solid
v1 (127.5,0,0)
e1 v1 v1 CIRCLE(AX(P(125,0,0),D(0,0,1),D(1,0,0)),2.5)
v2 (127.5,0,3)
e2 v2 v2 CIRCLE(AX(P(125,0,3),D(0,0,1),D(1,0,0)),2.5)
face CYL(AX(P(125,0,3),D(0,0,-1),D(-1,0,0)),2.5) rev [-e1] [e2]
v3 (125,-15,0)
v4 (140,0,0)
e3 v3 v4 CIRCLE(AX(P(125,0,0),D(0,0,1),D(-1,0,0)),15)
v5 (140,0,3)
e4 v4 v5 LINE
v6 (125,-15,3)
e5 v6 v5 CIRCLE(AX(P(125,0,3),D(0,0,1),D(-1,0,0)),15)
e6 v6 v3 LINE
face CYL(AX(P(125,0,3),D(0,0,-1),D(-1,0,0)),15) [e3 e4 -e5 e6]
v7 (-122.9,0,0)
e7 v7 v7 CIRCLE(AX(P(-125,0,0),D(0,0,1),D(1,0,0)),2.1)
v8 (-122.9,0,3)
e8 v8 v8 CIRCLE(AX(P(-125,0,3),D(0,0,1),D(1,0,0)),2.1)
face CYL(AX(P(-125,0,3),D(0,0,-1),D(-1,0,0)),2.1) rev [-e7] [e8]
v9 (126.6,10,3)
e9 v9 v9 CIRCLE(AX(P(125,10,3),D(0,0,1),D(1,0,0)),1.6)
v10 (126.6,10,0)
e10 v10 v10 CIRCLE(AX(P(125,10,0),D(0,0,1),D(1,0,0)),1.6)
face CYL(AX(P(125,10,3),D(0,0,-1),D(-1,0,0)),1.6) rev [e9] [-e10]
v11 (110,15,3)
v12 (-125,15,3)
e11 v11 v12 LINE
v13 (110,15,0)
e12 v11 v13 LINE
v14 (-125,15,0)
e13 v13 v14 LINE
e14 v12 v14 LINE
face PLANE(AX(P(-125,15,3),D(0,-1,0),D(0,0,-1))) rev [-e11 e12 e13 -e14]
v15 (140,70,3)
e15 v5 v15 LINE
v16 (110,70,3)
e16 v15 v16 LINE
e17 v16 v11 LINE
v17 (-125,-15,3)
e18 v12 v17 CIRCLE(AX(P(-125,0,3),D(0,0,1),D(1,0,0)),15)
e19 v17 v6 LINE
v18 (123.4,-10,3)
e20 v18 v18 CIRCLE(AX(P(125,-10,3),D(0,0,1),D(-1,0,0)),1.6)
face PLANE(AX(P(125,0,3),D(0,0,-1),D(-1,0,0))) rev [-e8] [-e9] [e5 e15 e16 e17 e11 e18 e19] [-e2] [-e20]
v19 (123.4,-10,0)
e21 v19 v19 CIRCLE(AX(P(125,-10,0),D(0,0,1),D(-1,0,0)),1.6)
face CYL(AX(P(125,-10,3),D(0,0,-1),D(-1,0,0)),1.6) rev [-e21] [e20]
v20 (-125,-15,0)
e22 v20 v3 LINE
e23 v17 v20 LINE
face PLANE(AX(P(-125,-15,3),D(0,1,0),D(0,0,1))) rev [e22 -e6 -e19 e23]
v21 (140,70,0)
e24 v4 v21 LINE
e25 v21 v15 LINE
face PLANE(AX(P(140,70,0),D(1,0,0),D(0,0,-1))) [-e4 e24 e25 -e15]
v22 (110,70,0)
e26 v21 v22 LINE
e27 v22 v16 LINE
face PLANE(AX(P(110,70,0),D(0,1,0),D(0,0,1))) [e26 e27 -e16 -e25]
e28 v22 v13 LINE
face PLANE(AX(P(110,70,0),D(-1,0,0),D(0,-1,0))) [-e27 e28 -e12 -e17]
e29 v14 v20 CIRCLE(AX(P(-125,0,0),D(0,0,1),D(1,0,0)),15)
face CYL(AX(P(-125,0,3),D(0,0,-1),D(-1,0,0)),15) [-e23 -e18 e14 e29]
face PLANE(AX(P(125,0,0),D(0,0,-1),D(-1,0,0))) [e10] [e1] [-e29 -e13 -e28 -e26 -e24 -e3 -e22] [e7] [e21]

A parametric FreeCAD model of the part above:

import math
import FreeCAD as App
import Part
import Sketcher
from FreeCAD import Vector
Q = App.Units.Quantity

doc = App.newDocument("Part")
params = doc.addObject("Spreadsheet::Sheet", "Params")
for row, (alias, value) in enumerate([
    ("sketch1_diameter", "5 mm"),
    ("sketch1_radius", "15 mm"),
    ("sketch1_diameter2", "3.2 mm"),
    ("sketch1_diameter3", "4.2 mm"),
    ("sketch1_width", "250 mm"),
    ("pad1_length", "3 mm"),
    ("sketch2_diameter", "3.2 mm"),
    ("sketch2_radius", "2.5 mm"),
    ("sketch2_width", "30 mm"),
    ("sketch2_height", "70 mm"),
    ("pad2_length", "3 mm"),
], start=1):
    params.set(f"A{row}", alias)
    params.set(f"B{row}", "=" + value)
    params.setAlias(f"B{row}", alias)

body = doc.addObject("PartDesign::Body", "Body")

# Sketch on XY plane
sketch1 = body.newObject("Sketcher::SketchObject", "Sketch")
sketch1.AttachmentSupport = (doc.getObject("XY_Plane"), [""])
sketch1.MapMode = "FlatFace"
sketch1.addGeometry(Part.LineSegment(Vector(125, 15, 0), Vector(-125, 15, 0)), False)
sketch1.addGeometry(Part.ArcOfCircle(Part.Circle(Vector(-125, 0, 0), Vector(0, 0, 1), 15), math.radians(90), math.radians(270)), False)
sketch1.addGeometry(Part.LineSegment(Vector(-125, -15, 0), Vector(125, -15, 0)), False)
sketch1.addGeometry(Part.ArcOfCircle(Part.Circle(Vector(125, 0, 0), Vector(0, 0, 1), 15), math.radians(-90), math.radians(90)), False)
sketch1.addGeometry(Part.Circle(Vector(125, -10, 0), Vector(0, 0, 1), 1.6), False)
sketch1.addGeometry(Part.Circle(Vector(125, 0, 0), Vector(0, 0, 1), 2.5), False)
sketch1.addGeometry(Part.Circle(Vector(125, 10, 0), Vector(0, 0, 1), 1.6), False)
sketch1.addGeometry(Part.Circle(Vector(-125, 0, 0), Vector(0, 0, 1), 2.1), False)
sketch1.addConstraint(Sketcher.Constraint("Tangent", 0, 2, 1, 1))
sketch1.addConstraint(Sketcher.Constraint("Tangent", 1, 2, 2, 1))
sketch1.addConstraint(Sketcher.Constraint("Tangent", 2, 2, 3, 1))
sketch1.addConstraint(Sketcher.Constraint("Tangent", 3, 2, 0, 1))
sketch1.addConstraint(Sketcher.Constraint("Horizontal", 0))
sketch1.addConstraint(Sketcher.Constraint("Horizontal", 2))
sketch1.addConstraint(Sketcher.Constraint("Coincident", 5, 3, 3, 3))
sketch1.addConstraint(Sketcher.Constraint("Coincident", 7, 3, 1, 3))
sketch1.addConstraint(Sketcher.Constraint("Equal", 4, 6))
sketch1.addConstraint(Sketcher.Constraint("Symmetric", 1, 3, 3, 3, -1, 1))
sketch1.addConstraint(Sketcher.Constraint("Symmetric", 4, 3, 6, 3, -1))
sketch1.addConstraint(Sketcher.Constraint("Vertical", 3, 3, 4, 3))
sketch1.addConstraint(Sketcher.Constraint("Diameter", 5, Q("5 mm")))
sketch1.addConstraint(Sketcher.Constraint("Radius", 1, Q("15 mm")))
sketch1.addConstraint(Sketcher.Constraint("Diameter", 4, Q("3.2 mm")))
sketch1.addConstraint(Sketcher.Constraint("Diameter", 7, Q("4.2 mm")))
sketch1.addConstraint(Sketcher.Constraint("DistanceX", 0, 2, 0, 1, Q("250 mm")))
sketch1.addConstraint(Sketcher.Constraint("DistanceY", 4, 3, -1, 1, Q("10 mm")))
sketch1.setExpression("Constraints[12]", "Params.sketch1_diameter")
sketch1.setExpression("Constraints[13]", "Params.sketch1_radius")
sketch1.setExpression("Constraints[14]", "Params.sketch1_diameter2")
sketch1.setExpression("Constraints[15]", "Params.sketch1_diameter3")
sketch1.setExpression("Constraints[16]", "Params.sketch1_width")
pad1 = body.newObject("PartDesign::Pad", "Pad")
pad1.Profile = sketch1
pad1.setExpression("Length", "Params.pad1_length")

# Sketch on XY plane
sketch2 = body.newObject("Sketcher::SketchObject", "Sketch001")
sketch2.AttachmentSupport = (doc.getObject("XY_Plane"), [""])
sketch2.MapMode = "FlatFace"
sketch2.addGeometry(Part.LineSegment(Vector(140, 70, 0), Vector(110, 70, 0)), False)
sketch2.addGeometry(Part.LineSegment(Vector(110, 70, 0), Vector(110, 0, 0)), False)
sketch2.addGeometry(Part.LineSegment(Vector(110, 0, 0), Vector(122.5, 0, 0)), False)
sketch2.addGeometry(Part.ArcOfCircle(Part.Circle(Vector(125, 0, 0), Vector(0, 0, 1), 2.5), math.radians(0), math.radians(180)), False)
sketch2.addGeometry(Part.LineSegment(Vector(127.5, 0, 0), Vector(140, 0, 0)), False)
sketch2.addGeometry(Part.LineSegment(Vector(140, 0, 0), Vector(140, 70, 0)), False)
sketch2.addGeometry(Part.Circle(Vector(125, 10, 0), Vector(0, 0, 1), 1.6), False)
sketch2.addConstraint(Sketcher.Constraint("Coincident", 0, 2, 1, 1))
sketch2.addConstraint(Sketcher.Constraint("Coincident", 1, 2, 2, 1))
sketch2.addConstraint(Sketcher.Constraint("Coincident", 2, 2, 3, 2))
sketch2.addConstraint(Sketcher.Constraint("Coincident", 3, 1, 4, 1))
sketch2.addConstraint(Sketcher.Constraint("Coincident", 4, 2, 5, 1))
sketch2.addConstraint(Sketcher.Constraint("Coincident", 5, 2, 0, 1))
sketch2.addConstraint(Sketcher.Constraint("Horizontal", 0))
sketch2.addConstraint(Sketcher.Constraint("Vertical", 1))
sketch2.addConstraint(Sketcher.Constraint("Horizontal", 2))
sketch2.addConstraint(Sketcher.Constraint("Horizontal", 4))
sketch2.addConstraint(Sketcher.Constraint("Vertical", 5))
sketch2.addConstraint(Sketcher.Constraint("PointOnObject", 3, 3, -1))
sketch2.addConstraint(Sketcher.Constraint("PointOnObject", 1, 2, -1))
sketch2.addConstraint(Sketcher.Constraint("PointOnObject", 3, 1, -1))
sketch2.addConstraint(Sketcher.Constraint("Vertical", 3, 3, 6, 3))
sketch2.addConstraint(Sketcher.Constraint("Equal", 2, 4))
sketch2.addConstraint(Sketcher.Constraint("Diameter", 6, Q("3.2 mm")))
sketch2.addConstraint(Sketcher.Constraint("Radius", 3, Q("2.5 mm")))
sketch2.addConstraint(Sketcher.Constraint("DistanceX", 0, 2, 0, 1, Q("30 mm")))
sketch2.addConstraint(Sketcher.Constraint("DistanceY", 1, 2, 1, 1, Q("70 mm")))
sketch2.addConstraint(Sketcher.Constraint("DistanceX", -1, 1, 3, 3, Q("125 mm")))
sketch2.addConstraint(Sketcher.Constraint("DistanceY", -1, 1, 6, 3, Q("10 mm")))
sketch2.setExpression("Constraints[16]", "Params.sketch2_diameter")
sketch2.setExpression("Constraints[17]", "Params.sketch2_radius")
sketch2.setExpression("Constraints[18]", "Params.sketch2_width")
sketch2.setExpression("Constraints[19]", "Params.sketch2_height")
pad2 = body.newObject("PartDesign::Pad", "Pad001")
pad2.Profile = sketch2
pad2.setExpression("Length", "Params.pad2_length")

doc.recompute()
